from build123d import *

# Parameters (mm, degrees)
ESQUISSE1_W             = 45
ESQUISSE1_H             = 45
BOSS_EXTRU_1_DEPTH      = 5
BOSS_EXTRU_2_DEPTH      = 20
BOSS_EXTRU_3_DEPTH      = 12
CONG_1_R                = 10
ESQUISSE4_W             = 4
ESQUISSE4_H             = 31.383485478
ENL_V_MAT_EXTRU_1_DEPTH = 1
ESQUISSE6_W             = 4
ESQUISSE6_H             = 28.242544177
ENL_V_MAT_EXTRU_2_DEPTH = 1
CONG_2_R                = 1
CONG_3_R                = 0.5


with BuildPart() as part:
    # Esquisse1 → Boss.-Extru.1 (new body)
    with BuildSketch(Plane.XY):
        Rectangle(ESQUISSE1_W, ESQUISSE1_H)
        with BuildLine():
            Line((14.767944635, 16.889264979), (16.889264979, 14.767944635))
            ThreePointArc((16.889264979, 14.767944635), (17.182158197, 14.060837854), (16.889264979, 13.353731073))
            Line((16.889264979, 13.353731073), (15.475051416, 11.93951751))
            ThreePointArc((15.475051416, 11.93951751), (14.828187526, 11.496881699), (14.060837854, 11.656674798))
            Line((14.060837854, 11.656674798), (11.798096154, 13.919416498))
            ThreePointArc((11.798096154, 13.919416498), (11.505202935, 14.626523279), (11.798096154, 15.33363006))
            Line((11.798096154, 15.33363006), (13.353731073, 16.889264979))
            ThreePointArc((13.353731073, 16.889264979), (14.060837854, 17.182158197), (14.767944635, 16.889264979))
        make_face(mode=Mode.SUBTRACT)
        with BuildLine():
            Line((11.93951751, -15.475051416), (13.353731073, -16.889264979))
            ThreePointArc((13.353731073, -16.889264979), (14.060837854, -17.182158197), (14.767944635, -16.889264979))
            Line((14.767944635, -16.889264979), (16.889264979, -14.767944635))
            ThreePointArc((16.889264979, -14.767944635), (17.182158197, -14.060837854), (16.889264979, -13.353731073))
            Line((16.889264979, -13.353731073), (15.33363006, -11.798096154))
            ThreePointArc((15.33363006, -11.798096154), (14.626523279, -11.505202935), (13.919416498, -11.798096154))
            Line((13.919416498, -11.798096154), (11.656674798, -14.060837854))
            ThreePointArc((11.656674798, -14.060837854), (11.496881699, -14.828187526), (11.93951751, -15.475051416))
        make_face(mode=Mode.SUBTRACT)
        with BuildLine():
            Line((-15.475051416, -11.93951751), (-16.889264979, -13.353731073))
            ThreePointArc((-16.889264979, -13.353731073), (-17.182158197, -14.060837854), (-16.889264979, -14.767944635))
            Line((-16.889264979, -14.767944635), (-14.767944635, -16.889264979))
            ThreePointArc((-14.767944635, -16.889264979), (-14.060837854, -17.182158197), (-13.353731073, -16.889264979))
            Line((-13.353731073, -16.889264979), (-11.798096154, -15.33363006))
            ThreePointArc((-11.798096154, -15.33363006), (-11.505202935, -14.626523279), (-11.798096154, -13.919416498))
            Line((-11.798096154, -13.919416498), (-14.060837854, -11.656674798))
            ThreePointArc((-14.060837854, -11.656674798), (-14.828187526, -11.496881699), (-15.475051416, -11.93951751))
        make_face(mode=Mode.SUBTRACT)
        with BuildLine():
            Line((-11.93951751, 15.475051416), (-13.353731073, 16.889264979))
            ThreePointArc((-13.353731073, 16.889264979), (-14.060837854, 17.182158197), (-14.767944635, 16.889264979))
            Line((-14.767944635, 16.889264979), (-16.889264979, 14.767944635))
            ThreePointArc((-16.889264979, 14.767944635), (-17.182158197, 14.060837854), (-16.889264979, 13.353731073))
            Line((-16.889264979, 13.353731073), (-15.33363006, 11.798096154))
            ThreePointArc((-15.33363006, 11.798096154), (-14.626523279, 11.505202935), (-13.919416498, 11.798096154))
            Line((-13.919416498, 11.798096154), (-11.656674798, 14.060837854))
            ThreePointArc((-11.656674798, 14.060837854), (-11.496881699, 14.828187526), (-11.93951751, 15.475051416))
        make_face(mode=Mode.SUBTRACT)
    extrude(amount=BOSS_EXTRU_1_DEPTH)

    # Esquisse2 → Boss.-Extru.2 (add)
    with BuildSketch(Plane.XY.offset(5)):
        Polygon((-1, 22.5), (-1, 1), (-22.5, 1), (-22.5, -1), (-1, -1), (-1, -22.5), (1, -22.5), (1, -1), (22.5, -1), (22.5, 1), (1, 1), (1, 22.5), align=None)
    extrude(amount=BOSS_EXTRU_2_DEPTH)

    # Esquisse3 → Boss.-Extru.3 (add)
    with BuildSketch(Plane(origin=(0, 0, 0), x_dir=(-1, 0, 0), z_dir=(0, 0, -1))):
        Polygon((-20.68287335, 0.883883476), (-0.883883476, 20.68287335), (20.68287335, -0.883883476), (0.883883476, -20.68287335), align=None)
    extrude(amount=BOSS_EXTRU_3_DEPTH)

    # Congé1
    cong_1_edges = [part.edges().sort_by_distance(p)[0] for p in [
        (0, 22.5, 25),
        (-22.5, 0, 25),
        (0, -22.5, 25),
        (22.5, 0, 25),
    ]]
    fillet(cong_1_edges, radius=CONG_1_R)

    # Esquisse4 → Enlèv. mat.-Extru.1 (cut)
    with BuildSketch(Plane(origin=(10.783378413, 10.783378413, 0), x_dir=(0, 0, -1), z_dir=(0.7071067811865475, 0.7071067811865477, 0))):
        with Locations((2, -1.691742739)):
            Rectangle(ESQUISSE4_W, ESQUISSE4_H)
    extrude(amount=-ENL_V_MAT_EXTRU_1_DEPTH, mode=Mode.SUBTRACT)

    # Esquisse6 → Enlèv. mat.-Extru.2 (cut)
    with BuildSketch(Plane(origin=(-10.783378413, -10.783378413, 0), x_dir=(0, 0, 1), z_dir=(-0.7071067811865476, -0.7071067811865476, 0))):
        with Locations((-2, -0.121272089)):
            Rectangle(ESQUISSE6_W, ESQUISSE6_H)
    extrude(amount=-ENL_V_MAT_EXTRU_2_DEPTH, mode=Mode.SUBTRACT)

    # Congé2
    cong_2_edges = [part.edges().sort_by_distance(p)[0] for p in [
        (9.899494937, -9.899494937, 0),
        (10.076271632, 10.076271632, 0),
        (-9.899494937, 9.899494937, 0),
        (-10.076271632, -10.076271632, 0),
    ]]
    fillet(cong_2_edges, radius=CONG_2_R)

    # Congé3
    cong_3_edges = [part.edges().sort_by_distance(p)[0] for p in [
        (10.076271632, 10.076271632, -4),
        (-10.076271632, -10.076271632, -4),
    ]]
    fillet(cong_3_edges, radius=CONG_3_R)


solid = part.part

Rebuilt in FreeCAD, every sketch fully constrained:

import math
import FreeCAD as App
import Part
import Sketcher

V = App.Vector
Q = App.Units.Quantity


def edges_at(feature, points):
    """Names of the edges that pass closest to the given points."""
    edges = feature.Shape.Edges
    near = lambda p: min(range(len(edges)), key=lambda i: edges[i].distToShape(Part.Vertex(*p))[0])
    return sorted({f"Edge{near(p) + 1}" for p in points})


def add_polygon(sketch, points):
    """Adds a closed chain of lines whose ends are joined by coincident constraints."""
    first, n = sketch.GeometryCount, len(points)
    for a, b in zip(points, points[1:] + points[:1]):
        sketch.addGeometry(Part.LineSegment(App.Vector(*a, 0), App.Vector(*b, 0)), False)
    for i in range(n):
        sketch.addConstraint(Sketcher.Constraint("Coincident", first + i, 2, first + (i + 1) % n, 1))

doc = App.newDocument("Part")
body = doc.addObject("PartDesign::Body", "Body")

sketch1 = body.newObject("Sketcher::SketchObject", "Sketch")
sketch1.AttachmentSupport = (doc.getObject("XY_Plane"), [""])
sketch1.MapMode = "FlatFace"
add_polygon(sketch1, [(-22.5, 22.5), (-22.5, -22.5), (22.5, -22.5), (22.5, 22.5)])
sketch1.addGeometry(Part.LineSegment(V(-16.9, -13.4, 0), V(-15.5, -11.9, 0)), False)
sketch1.addGeometry(Part.ArcOfCircle(Part.Circle(V(-14.6, -12.5, 0), V(0, 0, 1), 1), math.radians(55), math.radians(147)), False)
sketch1.addGeometry(Part.LineSegment(V(-14.1, -11.7, 0), V(-11.8, -13.9, 0)), False)
sketch1.addGeometry(Part.ArcOfCircle(Part.Circle(V(-12.5, -14.6, 0), V(0, 0, 1), 1), math.radians(-45), math.radians(45)), False)
sketch1.addGeometry(Part.LineSegment(V(-11.8, -15.3, 0), V(-13.4, -16.9, 0)), False)
sketch1.addGeometry(Part.ArcOfCircle(Part.Circle(V(-14.1, -16.2, 0), V(0, 0, 1), 1), math.radians(-135), math.radians(-45)), False)
sketch1.addGeometry(Part.LineSegment(V(-14.8, -16.9, 0), V(-16.9, -14.8, 0)), False)
sketch1.addGeometry(Part.ArcOfCircle(Part.Circle(V(-16.2, -14.1, 0), V(0, 0, 1), 1), math.radians(135), math.radians(225)), False)
sketch1.addGeometry(Part.LineSegment(V(13.4, -16.9, 0), V(11.9, -15.5, 0)), False)
sketch1.addGeometry(Part.ArcOfCircle(Part.Circle(V(12.5, -14.6, 0), V(0, 0, 1), 1), math.radians(145), math.radians(237)), False)
sketch1.addGeometry(Part.LineSegment(V(11.7, -14.1, 0), V(13.9, -11.8, 0)), False)
sketch1.addGeometry(Part.ArcOfCircle(Part.Circle(V(14.6, -12.5, 0), V(0, 0, 1), 1), math.radians(45), math.radians(135)), False)
sketch1.addGeometry(Part.LineSegment(V(15.3, -11.8, 0), V(16.9, -13.4, 0)), False)
sketch1.addGeometry(Part.ArcOfCircle(Part.Circle(V(16.2, -14.1, 0), V(0, 0, 1), 1), math.radians(-45), math.radians(45)), False)
sketch1.addGeometry(Part.LineSegment(V(16.9, -14.8, 0), V(14.8, -16.9, 0)), False)
sketch1.addGeometry(Part.ArcOfCircle(Part.Circle(V(14.1, -16.2, 0), V(0, 0, 1), 1), math.radians(-135), math.radians(-45)), False)
sketch1.addGeometry(Part.LineSegment(V(-13.4, 16.9, 0), V(-11.9, 15.5, 0)), False)
sketch1.addGeometry(Part.ArcOfCircle(Part.Circle(V(-12.5, 14.6, 0), V(0, 0, 1), 1), math.radians(-35), math.radians(57)), False)
sketch1.addGeometry(Part.LineSegment(V(-11.7, 14.1, 0), V(-13.9, 11.8, 0)), False)
sketch1.addGeometry(Part.ArcOfCircle(Part.Circle(V(-14.6, 12.5, 0), V(0, 0, 1), 1), math.radians(-135), math.radians(-45)), False)
sketch1.addGeometry(Part.LineSegment(V(-15.3, 11.8, 0), V(-16.9, 13.4, 0)), False)
sketch1.addGeometry(Part.ArcOfCircle(Part.Circle(V(-16.2, 14.1, 0), V(0, 0, 1), 1), math.radians(135), math.radians(225)), False)
sketch1.addGeometry(Part.LineSegment(V(-16.9, 14.8, 0), V(-14.8, 16.9, 0)), False)
sketch1.addGeometry(Part.ArcOfCircle(Part.Circle(V(-14.1, 16.2, 0), V(0, 0, 1), 1), math.radians(45), math.radians(135)), False)
sketch1.addGeometry(Part.ArcOfCircle(Part.Circle(V(14.1, 16.2, 0), V(0, 0, 1), 1), math.radians(45), math.radians(135)), False)
sketch1.addGeometry(Part.LineSegment(V(14.8, 16.9, 0), V(16.9, 14.8, 0)), False)
sketch1.addGeometry(Part.ArcOfCircle(Part.Circle(V(16.2, 14.1, 0), V(0, 0, 1), 1), math.radians(-45), math.radians(45)), False)
sketch1.addGeometry(Part.LineSegment(V(16.9, 13.4, 0), V(15.5, 11.9, 0)), False)
sketch1.addGeometry(Part.ArcOfCircle(Part.Circle(V(14.6, 12.5, 0), V(0, 0, 1), 1), math.radians(-125), math.radians(-33)), False)
sketch1.addGeometry(Part.LineSegment(V(14.1, 11.7, 0), V(11.8, 13.9, 0)), False)
sketch1.addGeometry(Part.ArcOfCircle(Part.Circle(V(12.5, 14.6, 0), V(0, 0, 1), 1), math.radians(135), math.radians(225)), False)
sketch1.addGeometry(Part.LineSegment(V(11.8, 15.3, 0), V(13.4, 16.9, 0)), False)
sketch1.addConstraint([
    Sketcher.Constraint("Coincident", 4, 2, 5, 2),
    Sketcher.Constraint("Coincident", 5, 1, 6, 1),
    Sketcher.Constraint("Tangent", 6, 2, 7, 2),
    Sketcher.Constraint("Tangent", 7, 1, 8, 1),
    Sketcher.Constraint("Tangent", 8, 2, 9, 2),
    Sketcher.Constraint("Tangent", 9, 1, 10, 1),
    Sketcher.Constraint("Tangent", 10, 2, 11, 2),
    Sketcher.Constraint("Tangent", 11, 1, 4, 1),
    Sketcher.Constraint("Coincident", 12, 2, 13, 2),
    Sketcher.Constraint("Coincident", 13, 1, 14, 1),
    Sketcher.Constraint("Tangent", 14, 2, 15, 2),
    Sketcher.Constraint("Tangent", 15, 1, 16, 1),
    Sketcher.Constraint("Tangent", 16, 2, 17, 2),
    Sketcher.Constraint("Tangent", 17, 1, 18, 1),
    Sketcher.Constraint("Tangent", 18, 2, 19, 2),
    Sketcher.Constraint("Tangent", 19, 1, 12, 1),
    Sketcher.Constraint("Coincident", 20, 2, 21, 2),
    Sketcher.Constraint("Coincident", 21, 1, 22, 1),
    Sketcher.Constraint("Tangent", 22, 2, 23, 2),
    Sketcher.Constraint("Tangent", 23, 1, 24, 1),
    Sketcher.Constraint("Tangent", 24, 2, 25, 2),
    Sketcher.Constraint("Tangent", 25, 1, 26, 1),
    Sketcher.Constraint("Tangent", 26, 2, 27, 2),
    Sketcher.Constraint("Tangent", 27, 1, 20, 1),
    Sketcher.Constraint("Tangent", 28, 1, 29, 1),
    Sketcher.Constraint("Tangent", 29, 2, 30, 2),
    Sketcher.Constraint("Tangent", 30, 1, 31, 1),
    Sketcher.Constraint("Coincident", 31, 2, 32, 2),
    Sketcher.Constraint("Coincident", 32, 1, 33, 1),
    Sketcher.Constraint("Tangent", 33, 2, 34, 2),
    Sketcher.Constraint("Tangent", 34, 1, 35, 1),
    Sketcher.Constraint("Tangent", 35, 2, 28, 2),
    Sketcher.Constraint("Vertical", 0),
    Sketcher.Constraint("Horizontal", 1),
    Sketcher.Constraint("Vertical", 2),
    Sketcher.Constraint("Horizontal", 3),
    Sketcher.Constraint("Equal", 5, 7),
    Sketcher.Constraint("Equal", 7, 9),
    Sketcher.Constraint("Equal", 9, 11),
    Sketcher.Constraint("Equal", 11, 13),
    Sketcher.Constraint("Equal", 13, 15),
    Sketcher.Constraint("Equal", 15, 17),
    Sketcher.Constraint("Equal", 17, 19),
    Sketcher.Constraint("Equal", 19, 21),
    Sketcher.Constraint("Equal", 21, 23),
    Sketcher.Constraint("Equal", 23, 25),
    Sketcher.Constraint("Equal", 25, 27),
    Sketcher.Constraint("Equal", 27, 28),
    Sketcher.Constraint("Equal", 28, 30),
    Sketcher.Constraint("Equal", 30, 32),
    Sketcher.Constraint("Equal", 32, 34),
    Sketcher.Constraint("Symmetric", 13, 3, 21, 3, -1, 1),
    Sketcher.Constraint("Symmetric", 15, 3, 23, 3, -1, 1),
    Sketcher.Constraint("Symmetric", 17, 3, 25, 3, -1, 1),
    Sketcher.Constraint("Symmetric", 19, 3, 27, 3, -1, 1),
    Sketcher.Constraint("Symmetric", 9, 3, 28, 3, -1, 1),
    Sketcher.Constraint("Symmetric", 11, 3, 30, 3, -1, 1),
    Sketcher.Constraint("Symmetric", 5, 3, 32, 3, -1, 1),
    Sketcher.Constraint("Symmetric", 7, 3, 34, 3, -1, 1),
    Sketcher.Constraint("Symmetric", 0, 2, 2, 2, -1, 1),
    Sketcher.Constraint("Symmetric", 11, 3, 17, 3, -2),
    Sketcher.Constraint("Symmetric", 9, 3, 19, 3, -2),
    Sketcher.Constraint("Perpendicular", 4, 6),
    Sketcher.Constraint("Perpendicular", 6, 8),
    Sketcher.Constraint("Perpendicular", 8, 10),
    Sketcher.Constraint("Parallel", 10, 12),
    Sketcher.Constraint("Perpendicular", 12, 14),
    Sketcher.Constraint("Perpendicular", 14, 16),
    Sketcher.Constraint("Perpendicular", 16, 18),
    Sketcher.Constraint("Perpendicular", 18, 20),
    Sketcher.Constraint("Perpendicular", 20, 22),
    Sketcher.Constraint("Perpendicular", 29, 31),
    Sketcher.Constraint("Perpendicular", 31, 33),
    Sketcher.Constraint("Horizontal", 17, 3, 13, 1),
    Sketcher.Constraint("Vertical", 27, 3, 5, 1),
    Sketcher.Constraint("Equal", 3, 0),
    Sketcher.Constraint("Equal", 4, 12),
    Sketcher.Constraint("Equal", 6, 14),
    Sketcher.Constraint("Radius", 5, Q("1 mm")),
    Sketcher.Constraint("DistanceX", 1, 1, 1, 2, Q("45 mm")),
    Sketcher.Constraint("Distance", 4, Q("2 mm")),
    Sketcher.Constraint("Distance", 10, Q("3 mm")),
    Sketcher.Constraint("Distance", 6, Q("3.2 mm")),
    Sketcher.Constraint("DistanceX", 9, 3, 13, 3, Q("26.5383 mm")),
    Sketcher.Constraint("DistanceY", 5, 3, 25, 3, Q("26.5383 mm")),
])
pad1 = body.newObject("PartDesign::Pad", "Pad")
pad1.Profile = sketch1
pad1.Length = 5

sketch2 = body.newObject("Sketcher::SketchObject", "Sketch001")
sketch2.AttachmentSupport = (doc.getObject("XY_Plane"), [""])
sketch2.MapMode = "FlatFace"
sketch2.AttachmentOffset = App.Placement(V(0, 0, 5), App.Rotation())
add_polygon(sketch2, [(-1, 22.5), (-1, 1), (-22.5, 1), (-22.5, -1), (-1, -1), (-1, -22.5), (1, -22.5), (1, -1), (22.5, -1), (22.5, 1), (1, 1), (1, 22.5)])
sketch2.addConstraint([
    Sketcher.Constraint("Vertical", 0),
    Sketcher.Constraint("Horizontal", 1),
    Sketcher.Constraint("Vertical", 2),
    Sketcher.Constraint("Horizontal", 3),
    Sketcher.Constraint("Vertical", 4),
    Sketcher.Constraint("Horizontal", 5),
    Sketcher.Constraint("Vertical", 6),
    Sketcher.Constraint("Horizontal", 7),
    Sketcher.Constraint("Vertical", 8),
    Sketcher.Constraint("Horizontal", 9),
    Sketcher.Constraint("Vertical", 10),
    Sketcher.Constraint("Horizontal", 11),
    Sketcher.Constraint("Symmetric", 0, 2, 6, 2, -1, 1),
    Sketcher.Constraint("Symmetric", 2, 2, 8, 2, -1, 1),
    Sketcher.Constraint("Symmetric", 4, 2, 10, 2, -1, 1),
    Sketcher.Constraint("Symmetric", 3, 2, 6, 2, -2),
    Sketcher.Constraint("Equal", 9, 0),
    Sketcher.Constraint("Equal", 11, 2),
    Sketcher.Constraint("DistanceX", 5, 1, 5, 2, Q("2 mm")),
    Sketcher.Constraint("DistanceX", 1, 2, 1, 1, Q("21.5 mm")),
])
pad2 = body.newObject("PartDesign::Pad", "Pad001")
pad2.Profile = sketch2
pad2.Length = 20

sketch3 = body.newObject("Sketcher::SketchObject", "Sketch002")
sketch3.AttachmentSupport = (doc.getObject("XY_Plane"), [""])
sketch3.MapMode = "FlatFace"
add_polygon(sketch3, [(1, 21), (21, 1), (-1, -21), (-21, -1)])
sketch3.addConstraint([
    Sketcher.Constraint("Symmetric", 0, 2, 2, 2, -1, 1),
    Sketcher.Constraint("Symmetric", 1, 2, 3, 2, -1, 1),
    Sketcher.Constraint("Perpendicular", 0, 1),
    Sketcher.Constraint("Angle", 0, Q("-45 deg")),
    Sketcher.Constraint("Distance", 0, Q("28 mm")),
    Sketcher.Constraint("Distance", 1, Q("30.5 mm")),
])
pad3 = body.newObject("PartDesign::Pad", "Pad002")
pad3.Profile = sketch3
pad3.Length = 12
pad3.Reversed = True
doc.recompute()

fillet = body.newObject("PartDesign::Fillet", "Fillet")
fillet.Base = (pad3, edges_at(pad3, [
    (0, 22.5, 25),
    (-22.5, 0, 25),
    (0, -22.5, 25),
    (22.5, 0, 25),
]))
fillet.Radius = 10

sketch4 = body.newObject("Sketcher::SketchObject", "Sketch003")
sketch4.Placement = App.Placement(V(10.783378, 10.783378, 0), App.Rotation(V(0, 0, -1), V(-0.707106781, 0.707106781, 0), V(0.707106781, 0.707106781, 0), "ZXY"))
add_polygon(sketch4, [(0, 14), (0, -17.4), (4, -17.4), (4, 14)])
sketch4.addConstraint([
    Sketcher.Constraint("Vertical", 0),
    Sketcher.Constraint("Horizontal", 1),
    Sketcher.Constraint("Vertical", 2),
    Sketcher.Constraint("Horizontal", 3),
    Sketcher.Constraint("PointOnObject", 0, 2, -2),
    Sketcher.Constraint("DistanceX", 1, 1, 1, 2, Q("4 mm")),
    Sketcher.Constraint("DistanceY", -1, 1, 2, 2, Q("14 mm")),
    Sketcher.Constraint("DistanceY", 0, 2, 0, 1, Q("31.383485 mm")),
])
pocket1 = body.newObject("PartDesign::Pocket", "Pocket")
pocket1.Profile = sketch4
pocket1.Length = 1

sketch5 = body.newObject("Sketcher::SketchObject", "Sketch004")
sketch5.Placement = App.Placement(V(-10.783378, -10.783378, 0), App.Rotation(V(0, 0, 1), V(-0.707106781, 0.707106781, 0), V(-0.707106781, -0.707106781, 0), "ZXY"))
add_polygon(sketch5, [(-4, 14), (-4, -14.2), (0, -14.2), (0, 14)])
sketch5.addConstraint([
    Sketcher.Constraint("Vertical", 0),
    Sketcher.Constraint("Horizontal", 1),
    Sketcher.Constraint("Vertical", 2),
    Sketcher.Constraint("Horizontal", 3),
    Sketcher.Constraint("PointOnObject", 1, 2, -2),
    Sketcher.Constraint("DistanceX", 1, 1, 1, 2, Q("4 mm")),
    Sketcher.Constraint("DistanceY", -1, 1, 2, 2, Q("14 mm")),
    Sketcher.Constraint("DistanceY", 0, 2, 0, 1, Q("28.242544 mm")),
])
pocket2 = body.newObject("PartDesign::Pocket", "Pocket001")
pocket2.Profile = sketch5
pocket2.Length = 1
doc.recompute()

fillet2 = body.newObject("PartDesign::Fillet", "Fillet001")
fillet2.Base = (pocket2, edges_at(pocket2, [
    (9.899, -9.899, 0),
    (10.076, 10.076, 0),
    (-9.899, 9.899, 0),
    (-10.076, -10.076, 0),
]))
fillet2.Radius = 1
doc.recompute()

fillet3 = body.newObject("PartDesign::Fillet", "Fillet002")
fillet3.Base = (fillet2, edges_at(fillet2, [(10.076, 10.076, -4), (-10.076, -10.076, -4)]))
fillet3.Radius = 0.5

doc.recompute()
